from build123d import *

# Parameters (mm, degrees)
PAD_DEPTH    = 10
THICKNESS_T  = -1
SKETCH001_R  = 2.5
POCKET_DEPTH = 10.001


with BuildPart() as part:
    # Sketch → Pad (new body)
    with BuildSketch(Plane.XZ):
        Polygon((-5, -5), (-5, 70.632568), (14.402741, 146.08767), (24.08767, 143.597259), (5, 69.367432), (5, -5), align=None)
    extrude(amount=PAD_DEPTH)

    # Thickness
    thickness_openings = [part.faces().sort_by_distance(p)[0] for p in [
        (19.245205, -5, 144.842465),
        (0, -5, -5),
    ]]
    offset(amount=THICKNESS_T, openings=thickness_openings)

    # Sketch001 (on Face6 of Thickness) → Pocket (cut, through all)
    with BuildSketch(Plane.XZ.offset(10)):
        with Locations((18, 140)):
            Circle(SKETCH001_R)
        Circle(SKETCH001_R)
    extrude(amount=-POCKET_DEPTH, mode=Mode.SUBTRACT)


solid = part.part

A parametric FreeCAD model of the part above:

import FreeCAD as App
import Part
import Sketcher
from FreeCAD import Vector


def faces_at(feature, points):
    """Names of the faces that lie closest to the given points."""
    faces = feature.Shape.Faces
    near = lambda p: min(range(len(faces)), key=lambda i: faces[i].distToShape(Part.Vertex(*p))[0])
    return sorted({f"Face{near(p) + 1}" for p in points})


def add_polygon(sketch, points):
    """Adds a closed chain of lines whose ends are joined by coincident constraints."""
    first, n = sketch.GeometryCount, len(points)
    for a, b in zip(points, points[1:] + points[:1]):
        sketch.addGeometry(Part.LineSegment(App.Vector(*a, 0), App.Vector(*b, 0)), False)
    for i in range(n):
        sketch.addConstraint(Sketcher.Constraint("Coincident", first + i, 2, first + (i + 1) % n, 1))

doc = App.newDocument("Part")
params = doc.addObject("Spreadsheet::Sheet", "Params")
for row, (alias, value) in enumerate([
    ("sketch1_width", "10 mm"),
    ("sketch1_length", "10 mm"),
    ("pad1_length", "10 mm"),
    ("thickness_wall", "1 mm"),
    ("sketch2_diameter", "5 mm"),
], start=1):
    params.set(f"A{row}", alias)
    params.set(f"B{row}", "=" + value)
    params.setAlias(f"B{row}", alias)

body = doc.addObject("PartDesign::Body", "Body")

# Sketch on XZ plane
sketch1 = doc.addObject("Sketcher::SketchObject", "Sketch")
body.addObject(sketch1)
sketch1.AttachmentSupport = (doc.XZ_Plane, [""])
sketch1.MapMode = "FlatFace"
add_polygon(sketch1, [(-5, 70.632568), (-5, -5), (5, -5), (5, 69.367432), (24.08767, 143.597259), (14.402741, 146.08767)])  # lines 0-5
sketch1.addConstraint(Sketcher.Constraint("Vertical", 0))
sketch1.addConstraint(Sketcher.Constraint("Horizontal", 1))
sketch1.addConstraint(Sketcher.Constraint("Vertical", 2))
sketch1.addConstraint(Sketcher.Constraint("Perpendicular", 3, 4))
sketch1.addConstraint(Sketcher.Constraint("Perpendicular", 4, 5))
sketch1.addConstraint(Sketcher.Constraint("DistanceX", 1, 1, 1, 2, 10.0))
sketch1.addConstraint(Sketcher.Constraint("Distance", 4, 10.0))
sketch1.addConstraint(Sketcher.Constraint("DistanceX", 0, 2, -1, 1, 5.0))
sketch1.addConstraint(Sketcher.Constraint("DistanceY", 0, 2, -1, 1, 5.0))
sketch1.addConstraint(Sketcher.Constraint("DistanceY", 0, 2, 0, 1, 75.632568))
sketch1.addConstraint(Sketcher.Constraint("DistanceY", 2, 1, 2, 2, 74.367432))
sketch1.addConstraint(Sketcher.Constraint("DistanceY", 5, 2, 4, 2, 75.455102))
sketch1.setExpression("Constraints[11]", "Params.sketch1_width")
sketch1.setExpression("Constraints[12]", "Params.sketch1_length")
pad1 = doc.addObject("PartDesign::Pad", "Pad")
body.addObject(pad1)
pad1.Profile = sketch1
pad1.setExpression("Length", "Params.pad1_length")
doc.recompute()

thickness = doc.addObject("PartDesign::Thickness", "Thickness")
body.addObject(thickness)
thickness.Base = (pad1, faces_at(pad1, [(19.245, -5, 144.842), (0, -5, -5)]))
thickness.setExpression("Value", "Params.thickness_wall")
thickness.Reversed = True
thickness.Join = "Arc"

# Sketch on XZ plane
sketch2 = doc.addObject("Sketcher::SketchObject", "Sketch001")
body.addObject(sketch2)
sketch2.AttachmentSupport = (doc.XZ_Plane, [""])
sketch2.MapMode = "FlatFace"
sketch2.AttachmentOffset = App.Placement(Vector(0, 0, 10), App.Rotation())
sketch2.addGeometry(Part.Circle(Vector(18, 140, 0), Vector(0, 0, 1), 2.5), False)
sketch2.addGeometry(Part.Circle(Vector(0, 0, 0), Vector(0, 0, 1), 2.5), False)
sketch2.addConstraint(Sketcher.Constraint("Coincident", 1, 3, -1, 1))
sketch2.addConstraint(Sketcher.Constraint("Equal", 0, 1))
sketch2.addConstraint(Sketcher.Constraint("Diameter", 0, 5.0))
sketch2.addConstraint(Sketcher.Constraint("DistanceX", -1, 1, 0, 3, 18.0))
sketch2.addConstraint(Sketcher.Constraint("DistanceY", -1, 1, 0, 3, 140.0))
sketch2.setExpression("Constraints[2]", "Params.sketch2_diameter")
pocket1 = doc.addObject("PartDesign::Pocket", "Pocket")
body.addObject(pocket1)
pocket1.Profile = sketch2
pocket1.Type = "ThroughAll"

doc.recompute()
